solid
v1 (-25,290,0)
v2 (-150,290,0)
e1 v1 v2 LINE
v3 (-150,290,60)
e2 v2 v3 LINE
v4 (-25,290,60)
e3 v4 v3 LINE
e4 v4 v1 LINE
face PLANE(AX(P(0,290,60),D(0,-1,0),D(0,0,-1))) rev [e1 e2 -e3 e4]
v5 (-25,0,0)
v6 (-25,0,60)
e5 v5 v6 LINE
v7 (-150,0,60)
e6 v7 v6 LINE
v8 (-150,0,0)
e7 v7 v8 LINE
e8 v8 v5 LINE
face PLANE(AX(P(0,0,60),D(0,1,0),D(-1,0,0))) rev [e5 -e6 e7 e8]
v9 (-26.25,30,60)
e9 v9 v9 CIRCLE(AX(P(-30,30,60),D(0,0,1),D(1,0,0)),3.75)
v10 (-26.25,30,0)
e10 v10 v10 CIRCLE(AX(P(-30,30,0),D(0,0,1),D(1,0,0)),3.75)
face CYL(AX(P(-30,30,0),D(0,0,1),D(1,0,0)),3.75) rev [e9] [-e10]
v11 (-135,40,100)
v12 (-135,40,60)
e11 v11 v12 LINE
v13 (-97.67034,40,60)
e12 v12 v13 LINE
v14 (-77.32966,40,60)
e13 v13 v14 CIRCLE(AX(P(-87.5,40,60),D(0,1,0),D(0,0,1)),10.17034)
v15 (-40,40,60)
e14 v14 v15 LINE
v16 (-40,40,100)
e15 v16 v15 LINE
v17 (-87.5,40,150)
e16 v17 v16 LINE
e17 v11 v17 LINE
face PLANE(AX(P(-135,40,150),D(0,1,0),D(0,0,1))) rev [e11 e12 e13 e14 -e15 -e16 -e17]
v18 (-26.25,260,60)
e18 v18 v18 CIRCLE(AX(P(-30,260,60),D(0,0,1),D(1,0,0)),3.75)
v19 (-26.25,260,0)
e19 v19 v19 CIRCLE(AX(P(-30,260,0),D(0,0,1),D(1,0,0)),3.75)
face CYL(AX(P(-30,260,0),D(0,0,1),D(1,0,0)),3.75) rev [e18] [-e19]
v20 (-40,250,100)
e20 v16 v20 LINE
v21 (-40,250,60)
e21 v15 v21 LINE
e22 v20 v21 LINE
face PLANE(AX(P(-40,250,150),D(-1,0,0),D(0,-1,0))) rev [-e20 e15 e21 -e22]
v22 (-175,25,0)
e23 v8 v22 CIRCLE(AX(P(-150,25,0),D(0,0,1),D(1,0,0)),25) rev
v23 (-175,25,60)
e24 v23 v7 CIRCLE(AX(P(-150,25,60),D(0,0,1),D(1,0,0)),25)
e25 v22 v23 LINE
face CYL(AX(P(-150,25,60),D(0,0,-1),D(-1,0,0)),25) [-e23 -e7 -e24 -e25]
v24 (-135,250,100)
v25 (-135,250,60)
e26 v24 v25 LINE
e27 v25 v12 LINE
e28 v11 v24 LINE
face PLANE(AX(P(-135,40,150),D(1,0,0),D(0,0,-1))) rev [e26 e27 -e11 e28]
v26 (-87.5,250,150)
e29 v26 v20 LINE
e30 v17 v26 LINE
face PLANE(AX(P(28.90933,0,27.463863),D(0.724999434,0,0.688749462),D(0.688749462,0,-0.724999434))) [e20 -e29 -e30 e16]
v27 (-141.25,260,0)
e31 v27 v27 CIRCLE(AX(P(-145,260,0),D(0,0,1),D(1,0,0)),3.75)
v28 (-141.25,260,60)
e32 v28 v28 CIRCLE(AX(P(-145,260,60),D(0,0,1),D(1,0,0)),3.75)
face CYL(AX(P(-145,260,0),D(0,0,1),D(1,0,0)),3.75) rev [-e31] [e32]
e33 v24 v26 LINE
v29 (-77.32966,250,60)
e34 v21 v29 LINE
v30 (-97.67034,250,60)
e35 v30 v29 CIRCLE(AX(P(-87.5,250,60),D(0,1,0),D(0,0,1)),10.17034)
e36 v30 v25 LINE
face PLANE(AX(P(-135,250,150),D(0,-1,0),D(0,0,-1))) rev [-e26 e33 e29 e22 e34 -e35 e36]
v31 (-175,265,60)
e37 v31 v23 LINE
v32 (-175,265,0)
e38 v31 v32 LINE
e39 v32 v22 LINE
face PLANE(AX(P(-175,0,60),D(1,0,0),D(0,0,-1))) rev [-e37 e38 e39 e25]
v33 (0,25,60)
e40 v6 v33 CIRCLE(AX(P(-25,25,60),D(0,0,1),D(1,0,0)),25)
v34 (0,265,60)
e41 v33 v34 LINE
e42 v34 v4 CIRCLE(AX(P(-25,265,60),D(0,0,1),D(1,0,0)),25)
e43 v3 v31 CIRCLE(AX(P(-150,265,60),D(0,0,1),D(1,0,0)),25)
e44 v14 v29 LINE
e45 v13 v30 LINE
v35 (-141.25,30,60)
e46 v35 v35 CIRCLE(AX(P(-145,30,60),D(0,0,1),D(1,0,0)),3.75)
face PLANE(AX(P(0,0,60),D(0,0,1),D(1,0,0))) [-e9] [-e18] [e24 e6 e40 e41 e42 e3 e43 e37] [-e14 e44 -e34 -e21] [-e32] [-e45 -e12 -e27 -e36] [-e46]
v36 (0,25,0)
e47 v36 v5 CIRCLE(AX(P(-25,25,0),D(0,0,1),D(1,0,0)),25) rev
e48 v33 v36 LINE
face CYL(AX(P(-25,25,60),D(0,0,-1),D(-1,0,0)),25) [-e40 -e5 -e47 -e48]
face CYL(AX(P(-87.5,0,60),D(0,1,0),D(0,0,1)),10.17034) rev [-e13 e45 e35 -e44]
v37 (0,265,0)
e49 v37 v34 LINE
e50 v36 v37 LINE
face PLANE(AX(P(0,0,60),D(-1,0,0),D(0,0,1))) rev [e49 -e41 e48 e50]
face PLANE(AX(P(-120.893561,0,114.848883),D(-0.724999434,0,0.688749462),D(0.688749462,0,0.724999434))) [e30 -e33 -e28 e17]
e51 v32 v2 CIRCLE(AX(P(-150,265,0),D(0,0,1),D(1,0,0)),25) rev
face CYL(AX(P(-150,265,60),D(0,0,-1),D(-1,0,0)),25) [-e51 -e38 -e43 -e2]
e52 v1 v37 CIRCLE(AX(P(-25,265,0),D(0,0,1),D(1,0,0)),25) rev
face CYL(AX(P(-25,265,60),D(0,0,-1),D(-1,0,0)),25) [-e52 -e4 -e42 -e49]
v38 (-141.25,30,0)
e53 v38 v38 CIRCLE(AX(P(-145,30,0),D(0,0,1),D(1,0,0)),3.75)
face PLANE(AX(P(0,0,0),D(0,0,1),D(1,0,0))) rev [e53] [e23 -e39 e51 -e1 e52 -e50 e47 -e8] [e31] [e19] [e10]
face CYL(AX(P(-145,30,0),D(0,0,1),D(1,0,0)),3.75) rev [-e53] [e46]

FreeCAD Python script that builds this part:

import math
import FreeCAD as App
import Part
import Sketcher
from FreeCAD import Vector


def edges_at(feature, points):
    """Names of the edges that pass closest to the given points."""
    edges = feature.Shape.Edges
    near = lambda p: min(range(len(edges)), key=lambda i: edges[i].distToShape(Part.Vertex(*p))[0])
    return sorted({f"Edge{near(p) + 1}" for p in points})

doc = App.newDocument("Part")
body = doc.addObject("PartDesign::Body", "Body")

# Sketch on XY plane
sketch1 = body.newObject("Sketcher::SketchObject", "Sketch")
sketch1.AttachmentSupport = (doc.getObject("XY_Plane"), [""])
sketch1.MapMode = "FlatFace"
sketch1.addGeometry([
    Part.LineSegment(Vector(-175, 290, 0), Vector(-175, 0, 0)),
    Part.LineSegment(Vector(-175, 0, 0), Vector(0, 0, 0)),
    Part.LineSegment(Vector(0, 0, 0), Vector(0, 290, 0)),
    Part.LineSegment(Vector(0, 290, 0), Vector(-175, 290, 0)),
], False)
sketch1.addConstraint([
    Sketcher.Constraint("Coincident", 0, 2, 1, 1),
    Sketcher.Constraint("Coincident", 1, 2, 2, 1),
    Sketcher.Constraint("Coincident", 2, 2, 3, 1),
    Sketcher.Constraint("Coincident", 3, 2, 0, 1),
    Sketcher.Constraint("Vertical", 0),
    Sketcher.Constraint("Horizontal", 1),
    Sketcher.Constraint("Vertical", 2),
    Sketcher.Constraint("Horizontal", 3),
    Sketcher.Constraint("Coincident", 1, 2, -1, 1),
    Sketcher.Constraint("DistanceX", 1, 1, 1, 2, 175.0),
    Sketcher.Constraint("DistanceY", 0, 2, 0, 1, 290.0),
])
pad1 = body.newObject("PartDesign::Pad", "Pad")
pad1.Profile = sketch1
pad1.Length = 60
doc.recompute()

fillet = body.newObject("PartDesign::Fillet", "Fillet")
fillet.Base = (pad1, edges_at(pad1, [
    (0, 0, 30),
    (-175, 0, 30),
    (-175, 290, 30),
    (0, 290, 30),
]))
fillet.Radius = 25

# Sketch on XY plane
sketch2 = body.newObject("Sketcher::SketchObject", "Sketch001")
sketch2.AttachmentSupport = (doc.getObject("XY_Plane"), [""])
sketch2.MapMode = "FlatFace"
sketch2.AttachmentOffset = App.Placement(Vector(0, 0, 60), App.Rotation())
sketch2.addGeometry([
    Part.Circle(Vector(-145, 30, 0), Vector(0, 0, 1), 3.8),
    Part.Circle(Vector(-30, 30, 0), Vector(0, 0, 1), 3.8),
    Part.Circle(Vector(-145, 260, 0), Vector(0, 0, 1), 3.8),
    Part.Circle(Vector(-30, 260, 0), Vector(0, 0, 1), 3.8),
], False)
sketch2.addConstraint([
    Sketcher.Constraint("Equal", 0, 1),
    Sketcher.Constraint("Equal", 1, 2),
    Sketcher.Constraint("Equal", 2, 3),
    Sketcher.Constraint("Horizontal", 0, 3, 1, 3),
    Sketcher.Constraint("Horizontal", 2, 3, 3, 3),
    Sketcher.Constraint("Vertical", 0, 3, 2, 3),
    Sketcher.Constraint("Vertical", 1, 3, 3, 3),
    Sketcher.Constraint("Diameter", 0, 7.5),
    Sketcher.Constraint("DistanceX", 0, 3, -1, 1, 145.0),
    Sketcher.Constraint("DistanceY", -1, 1, 0, 3, 30.0),
    Sketcher.Constraint("DistanceX", 1, 3, -1, 1, 30.0),
    Sketcher.Constraint("DistanceY", -1, 1, 2, 3, 260.0),
])
pocket1 = body.newObject("PartDesign::Pocket", "Pocket")
pocket1.Profile = sketch2
pocket1.Type = "ThroughAll"
pocket1.Midplane = True

# Sketch on XY plane
sketch3 = body.newObject("Sketcher::SketchObject", "Sketch002")
sketch3.AttachmentSupport = (doc.getObject("XY_Plane"), [""])
sketch3.MapMode = "FlatFace"
sketch3.AttachmentOffset = App.Placement(Vector(0, 0, 60), App.Rotation())
sketch3.addGeometry([
    Part.LineSegment(Vector(-135, 250, 0), Vector(-135, 40, 0)),
    Part.LineSegment(Vector(-135, 40, 0), Vector(-40, 40, 0)),
    Part.LineSegment(Vector(-40, 40, 0), Vector(-40, 250, 0)),
    Part.LineSegment(Vector(-40, 250, 0), Vector(-135, 250, 0)),
], False)
sketch3.addConstraint([
    Sketcher.Constraint("Coincident", 0, 2, 1, 1),
    Sketcher.Constraint("Coincident", 1, 2, 2, 1),
    Sketcher.Constraint("Coincident", 2, 2, 3, 1),
    Sketcher.Constraint("Coincident", 3, 2, 0, 1),
    Sketcher.Constraint("Vertical", 0),
    Sketcher.Constraint("Horizontal", 1),
    Sketcher.Constraint("Vertical", 2),
    Sketcher.Constraint("Horizontal", 3),
    Sketcher.Constraint("DistanceX", 1, 1, 1, 2, 95.0),
    Sketcher.Constraint("DistanceY", 0, 2, 0, 1, 210.0),
    Sketcher.Constraint("DistanceX", 0, 2, -1, 1, 135.0),
    Sketcher.Constraint("DistanceY", -1, 1, 0, 2, 40.0),
])
pad2 = body.newObject("PartDesign::Pad", "Pad001")
pad2.Profile = sketch3
pad2.Length = 90

# Sketch on XZ plane
sketch4 = body.newObject("Sketcher::SketchObject", "Sketch003")
sketch4.AttachmentSupport = (doc.getObject("XZ_Plane"), [""])
sketch4.MapMode = "FlatFace"
sketch4.AttachmentOffset = App.Placement(Vector(0, 0, -250), App.Rotation())
sketch4.addGeometry([
    Part.LineSegment(Vector(-40, 100, 0), Vector(-88, 150, 0)),  # 0
    Part.LineSegment(Vector(-88, 150, 0), Vector(-40, 150, 0)),  # 1
    Part.LineSegment(Vector(-40, 150, 0), Vector(-40, 100, 0)),  # 2
    Part.LineSegment(Vector(-88, 150, 0), Vector(-135, 100, 0)),  # 3
    Part.LineSegment(Vector(-135, 100, 0), Vector(-135, 150, 0)),  # 4
    Part.LineSegment(Vector(-135, 150, 0), Vector(-88, 150, 0)),  # 5
], False)
sketch4.addConstraint([
    Sketcher.Constraint("Coincident", 0, 2, 1, 1),
    Sketcher.Constraint("Coincident", 1, 2, 2, 1),
    Sketcher.Constraint("Coincident", 2, 2, 0, 1),
    Sketcher.Constraint("Coincident", 3, 2, 4, 1),
    Sketcher.Constraint("Coincident", 4, 2, 5, 1),
    Sketcher.Constraint("Coincident", 5, 2, 3, 1),
    Sketcher.Constraint("Horizontal", 1),
    Sketcher.Constraint("Vertical", 2),
    Sketcher.Constraint("Vertical", 4),
    Sketcher.Constraint("Horizontal", 5),
    Sketcher.Constraint("Coincident", 5, 2, 0, 2),
    Sketcher.Constraint("Horizontal", 2, 2, 3, 2),
    Sketcher.Constraint("Equal", 1, 5),
    Sketcher.Constraint("DistanceY", 2, 2, 2, 1, 50.0),
    Sketcher.Constraint("DistanceX", 1, 1, 1, 2, 47.5),
    Sketcher.Constraint("DistanceY", -1, 1, 0, 2, 150.0),
    Sketcher.Constraint("DistanceX", 1, 2, -1, 1, 40.0),
])
pocket2 = body.newObject("PartDesign::Pocket", "Pocket001")
pocket2.Profile = sketch4
pocket2.Type = "ThroughAll"
pocket2.Reversed = True

# Sketch on XZ plane
sketch5 = body.newObject("Sketcher::SketchObject", "Sketch004")
sketch5.AttachmentSupport = (doc.getObject("XZ_Plane"), [""])
sketch5.MapMode = "FlatFace"
sketch5.AttachmentOffset = App.Placement(Vector(0, 0, -250), App.Rotation())
sketch5.addGeometry([
    Part.LineSegment(Vector(-77, 60, 0), Vector(-98, 60, 0)),
    Part.ArcOfCircle(Part.Circle(Vector(-88, 60, 0), Vector(0, 0, 1), 10), math.radians(0), math.radians(180)),
], False)
sketch5.addConstraint([
    Sketcher.Constraint("Coincident", 0, 1, 1, 1),
    Sketcher.Constraint("Coincident", 1, 2, 0, 2),
    Sketcher.Constraint("Horizontal", 0),
    Sketcher.Constraint("Horizontal", 1, 3, 0, 1),
    Sketcher.Constraint("DistanceY", -1, 1, 1, 3, 60.0),
    Sketcher.Constraint("DistanceX", 1, 3, -1, 1, 87.5),
    Sketcher.Constraint("Radius", 1, 10.17034),
])
pocket3 = body.newObject("PartDesign::Pocket", "Pocket002")
pocket3.Profile = sketch5
pocket3.Type = "ThroughAll"
pocket3.Reversed = True

doc.recompute()
